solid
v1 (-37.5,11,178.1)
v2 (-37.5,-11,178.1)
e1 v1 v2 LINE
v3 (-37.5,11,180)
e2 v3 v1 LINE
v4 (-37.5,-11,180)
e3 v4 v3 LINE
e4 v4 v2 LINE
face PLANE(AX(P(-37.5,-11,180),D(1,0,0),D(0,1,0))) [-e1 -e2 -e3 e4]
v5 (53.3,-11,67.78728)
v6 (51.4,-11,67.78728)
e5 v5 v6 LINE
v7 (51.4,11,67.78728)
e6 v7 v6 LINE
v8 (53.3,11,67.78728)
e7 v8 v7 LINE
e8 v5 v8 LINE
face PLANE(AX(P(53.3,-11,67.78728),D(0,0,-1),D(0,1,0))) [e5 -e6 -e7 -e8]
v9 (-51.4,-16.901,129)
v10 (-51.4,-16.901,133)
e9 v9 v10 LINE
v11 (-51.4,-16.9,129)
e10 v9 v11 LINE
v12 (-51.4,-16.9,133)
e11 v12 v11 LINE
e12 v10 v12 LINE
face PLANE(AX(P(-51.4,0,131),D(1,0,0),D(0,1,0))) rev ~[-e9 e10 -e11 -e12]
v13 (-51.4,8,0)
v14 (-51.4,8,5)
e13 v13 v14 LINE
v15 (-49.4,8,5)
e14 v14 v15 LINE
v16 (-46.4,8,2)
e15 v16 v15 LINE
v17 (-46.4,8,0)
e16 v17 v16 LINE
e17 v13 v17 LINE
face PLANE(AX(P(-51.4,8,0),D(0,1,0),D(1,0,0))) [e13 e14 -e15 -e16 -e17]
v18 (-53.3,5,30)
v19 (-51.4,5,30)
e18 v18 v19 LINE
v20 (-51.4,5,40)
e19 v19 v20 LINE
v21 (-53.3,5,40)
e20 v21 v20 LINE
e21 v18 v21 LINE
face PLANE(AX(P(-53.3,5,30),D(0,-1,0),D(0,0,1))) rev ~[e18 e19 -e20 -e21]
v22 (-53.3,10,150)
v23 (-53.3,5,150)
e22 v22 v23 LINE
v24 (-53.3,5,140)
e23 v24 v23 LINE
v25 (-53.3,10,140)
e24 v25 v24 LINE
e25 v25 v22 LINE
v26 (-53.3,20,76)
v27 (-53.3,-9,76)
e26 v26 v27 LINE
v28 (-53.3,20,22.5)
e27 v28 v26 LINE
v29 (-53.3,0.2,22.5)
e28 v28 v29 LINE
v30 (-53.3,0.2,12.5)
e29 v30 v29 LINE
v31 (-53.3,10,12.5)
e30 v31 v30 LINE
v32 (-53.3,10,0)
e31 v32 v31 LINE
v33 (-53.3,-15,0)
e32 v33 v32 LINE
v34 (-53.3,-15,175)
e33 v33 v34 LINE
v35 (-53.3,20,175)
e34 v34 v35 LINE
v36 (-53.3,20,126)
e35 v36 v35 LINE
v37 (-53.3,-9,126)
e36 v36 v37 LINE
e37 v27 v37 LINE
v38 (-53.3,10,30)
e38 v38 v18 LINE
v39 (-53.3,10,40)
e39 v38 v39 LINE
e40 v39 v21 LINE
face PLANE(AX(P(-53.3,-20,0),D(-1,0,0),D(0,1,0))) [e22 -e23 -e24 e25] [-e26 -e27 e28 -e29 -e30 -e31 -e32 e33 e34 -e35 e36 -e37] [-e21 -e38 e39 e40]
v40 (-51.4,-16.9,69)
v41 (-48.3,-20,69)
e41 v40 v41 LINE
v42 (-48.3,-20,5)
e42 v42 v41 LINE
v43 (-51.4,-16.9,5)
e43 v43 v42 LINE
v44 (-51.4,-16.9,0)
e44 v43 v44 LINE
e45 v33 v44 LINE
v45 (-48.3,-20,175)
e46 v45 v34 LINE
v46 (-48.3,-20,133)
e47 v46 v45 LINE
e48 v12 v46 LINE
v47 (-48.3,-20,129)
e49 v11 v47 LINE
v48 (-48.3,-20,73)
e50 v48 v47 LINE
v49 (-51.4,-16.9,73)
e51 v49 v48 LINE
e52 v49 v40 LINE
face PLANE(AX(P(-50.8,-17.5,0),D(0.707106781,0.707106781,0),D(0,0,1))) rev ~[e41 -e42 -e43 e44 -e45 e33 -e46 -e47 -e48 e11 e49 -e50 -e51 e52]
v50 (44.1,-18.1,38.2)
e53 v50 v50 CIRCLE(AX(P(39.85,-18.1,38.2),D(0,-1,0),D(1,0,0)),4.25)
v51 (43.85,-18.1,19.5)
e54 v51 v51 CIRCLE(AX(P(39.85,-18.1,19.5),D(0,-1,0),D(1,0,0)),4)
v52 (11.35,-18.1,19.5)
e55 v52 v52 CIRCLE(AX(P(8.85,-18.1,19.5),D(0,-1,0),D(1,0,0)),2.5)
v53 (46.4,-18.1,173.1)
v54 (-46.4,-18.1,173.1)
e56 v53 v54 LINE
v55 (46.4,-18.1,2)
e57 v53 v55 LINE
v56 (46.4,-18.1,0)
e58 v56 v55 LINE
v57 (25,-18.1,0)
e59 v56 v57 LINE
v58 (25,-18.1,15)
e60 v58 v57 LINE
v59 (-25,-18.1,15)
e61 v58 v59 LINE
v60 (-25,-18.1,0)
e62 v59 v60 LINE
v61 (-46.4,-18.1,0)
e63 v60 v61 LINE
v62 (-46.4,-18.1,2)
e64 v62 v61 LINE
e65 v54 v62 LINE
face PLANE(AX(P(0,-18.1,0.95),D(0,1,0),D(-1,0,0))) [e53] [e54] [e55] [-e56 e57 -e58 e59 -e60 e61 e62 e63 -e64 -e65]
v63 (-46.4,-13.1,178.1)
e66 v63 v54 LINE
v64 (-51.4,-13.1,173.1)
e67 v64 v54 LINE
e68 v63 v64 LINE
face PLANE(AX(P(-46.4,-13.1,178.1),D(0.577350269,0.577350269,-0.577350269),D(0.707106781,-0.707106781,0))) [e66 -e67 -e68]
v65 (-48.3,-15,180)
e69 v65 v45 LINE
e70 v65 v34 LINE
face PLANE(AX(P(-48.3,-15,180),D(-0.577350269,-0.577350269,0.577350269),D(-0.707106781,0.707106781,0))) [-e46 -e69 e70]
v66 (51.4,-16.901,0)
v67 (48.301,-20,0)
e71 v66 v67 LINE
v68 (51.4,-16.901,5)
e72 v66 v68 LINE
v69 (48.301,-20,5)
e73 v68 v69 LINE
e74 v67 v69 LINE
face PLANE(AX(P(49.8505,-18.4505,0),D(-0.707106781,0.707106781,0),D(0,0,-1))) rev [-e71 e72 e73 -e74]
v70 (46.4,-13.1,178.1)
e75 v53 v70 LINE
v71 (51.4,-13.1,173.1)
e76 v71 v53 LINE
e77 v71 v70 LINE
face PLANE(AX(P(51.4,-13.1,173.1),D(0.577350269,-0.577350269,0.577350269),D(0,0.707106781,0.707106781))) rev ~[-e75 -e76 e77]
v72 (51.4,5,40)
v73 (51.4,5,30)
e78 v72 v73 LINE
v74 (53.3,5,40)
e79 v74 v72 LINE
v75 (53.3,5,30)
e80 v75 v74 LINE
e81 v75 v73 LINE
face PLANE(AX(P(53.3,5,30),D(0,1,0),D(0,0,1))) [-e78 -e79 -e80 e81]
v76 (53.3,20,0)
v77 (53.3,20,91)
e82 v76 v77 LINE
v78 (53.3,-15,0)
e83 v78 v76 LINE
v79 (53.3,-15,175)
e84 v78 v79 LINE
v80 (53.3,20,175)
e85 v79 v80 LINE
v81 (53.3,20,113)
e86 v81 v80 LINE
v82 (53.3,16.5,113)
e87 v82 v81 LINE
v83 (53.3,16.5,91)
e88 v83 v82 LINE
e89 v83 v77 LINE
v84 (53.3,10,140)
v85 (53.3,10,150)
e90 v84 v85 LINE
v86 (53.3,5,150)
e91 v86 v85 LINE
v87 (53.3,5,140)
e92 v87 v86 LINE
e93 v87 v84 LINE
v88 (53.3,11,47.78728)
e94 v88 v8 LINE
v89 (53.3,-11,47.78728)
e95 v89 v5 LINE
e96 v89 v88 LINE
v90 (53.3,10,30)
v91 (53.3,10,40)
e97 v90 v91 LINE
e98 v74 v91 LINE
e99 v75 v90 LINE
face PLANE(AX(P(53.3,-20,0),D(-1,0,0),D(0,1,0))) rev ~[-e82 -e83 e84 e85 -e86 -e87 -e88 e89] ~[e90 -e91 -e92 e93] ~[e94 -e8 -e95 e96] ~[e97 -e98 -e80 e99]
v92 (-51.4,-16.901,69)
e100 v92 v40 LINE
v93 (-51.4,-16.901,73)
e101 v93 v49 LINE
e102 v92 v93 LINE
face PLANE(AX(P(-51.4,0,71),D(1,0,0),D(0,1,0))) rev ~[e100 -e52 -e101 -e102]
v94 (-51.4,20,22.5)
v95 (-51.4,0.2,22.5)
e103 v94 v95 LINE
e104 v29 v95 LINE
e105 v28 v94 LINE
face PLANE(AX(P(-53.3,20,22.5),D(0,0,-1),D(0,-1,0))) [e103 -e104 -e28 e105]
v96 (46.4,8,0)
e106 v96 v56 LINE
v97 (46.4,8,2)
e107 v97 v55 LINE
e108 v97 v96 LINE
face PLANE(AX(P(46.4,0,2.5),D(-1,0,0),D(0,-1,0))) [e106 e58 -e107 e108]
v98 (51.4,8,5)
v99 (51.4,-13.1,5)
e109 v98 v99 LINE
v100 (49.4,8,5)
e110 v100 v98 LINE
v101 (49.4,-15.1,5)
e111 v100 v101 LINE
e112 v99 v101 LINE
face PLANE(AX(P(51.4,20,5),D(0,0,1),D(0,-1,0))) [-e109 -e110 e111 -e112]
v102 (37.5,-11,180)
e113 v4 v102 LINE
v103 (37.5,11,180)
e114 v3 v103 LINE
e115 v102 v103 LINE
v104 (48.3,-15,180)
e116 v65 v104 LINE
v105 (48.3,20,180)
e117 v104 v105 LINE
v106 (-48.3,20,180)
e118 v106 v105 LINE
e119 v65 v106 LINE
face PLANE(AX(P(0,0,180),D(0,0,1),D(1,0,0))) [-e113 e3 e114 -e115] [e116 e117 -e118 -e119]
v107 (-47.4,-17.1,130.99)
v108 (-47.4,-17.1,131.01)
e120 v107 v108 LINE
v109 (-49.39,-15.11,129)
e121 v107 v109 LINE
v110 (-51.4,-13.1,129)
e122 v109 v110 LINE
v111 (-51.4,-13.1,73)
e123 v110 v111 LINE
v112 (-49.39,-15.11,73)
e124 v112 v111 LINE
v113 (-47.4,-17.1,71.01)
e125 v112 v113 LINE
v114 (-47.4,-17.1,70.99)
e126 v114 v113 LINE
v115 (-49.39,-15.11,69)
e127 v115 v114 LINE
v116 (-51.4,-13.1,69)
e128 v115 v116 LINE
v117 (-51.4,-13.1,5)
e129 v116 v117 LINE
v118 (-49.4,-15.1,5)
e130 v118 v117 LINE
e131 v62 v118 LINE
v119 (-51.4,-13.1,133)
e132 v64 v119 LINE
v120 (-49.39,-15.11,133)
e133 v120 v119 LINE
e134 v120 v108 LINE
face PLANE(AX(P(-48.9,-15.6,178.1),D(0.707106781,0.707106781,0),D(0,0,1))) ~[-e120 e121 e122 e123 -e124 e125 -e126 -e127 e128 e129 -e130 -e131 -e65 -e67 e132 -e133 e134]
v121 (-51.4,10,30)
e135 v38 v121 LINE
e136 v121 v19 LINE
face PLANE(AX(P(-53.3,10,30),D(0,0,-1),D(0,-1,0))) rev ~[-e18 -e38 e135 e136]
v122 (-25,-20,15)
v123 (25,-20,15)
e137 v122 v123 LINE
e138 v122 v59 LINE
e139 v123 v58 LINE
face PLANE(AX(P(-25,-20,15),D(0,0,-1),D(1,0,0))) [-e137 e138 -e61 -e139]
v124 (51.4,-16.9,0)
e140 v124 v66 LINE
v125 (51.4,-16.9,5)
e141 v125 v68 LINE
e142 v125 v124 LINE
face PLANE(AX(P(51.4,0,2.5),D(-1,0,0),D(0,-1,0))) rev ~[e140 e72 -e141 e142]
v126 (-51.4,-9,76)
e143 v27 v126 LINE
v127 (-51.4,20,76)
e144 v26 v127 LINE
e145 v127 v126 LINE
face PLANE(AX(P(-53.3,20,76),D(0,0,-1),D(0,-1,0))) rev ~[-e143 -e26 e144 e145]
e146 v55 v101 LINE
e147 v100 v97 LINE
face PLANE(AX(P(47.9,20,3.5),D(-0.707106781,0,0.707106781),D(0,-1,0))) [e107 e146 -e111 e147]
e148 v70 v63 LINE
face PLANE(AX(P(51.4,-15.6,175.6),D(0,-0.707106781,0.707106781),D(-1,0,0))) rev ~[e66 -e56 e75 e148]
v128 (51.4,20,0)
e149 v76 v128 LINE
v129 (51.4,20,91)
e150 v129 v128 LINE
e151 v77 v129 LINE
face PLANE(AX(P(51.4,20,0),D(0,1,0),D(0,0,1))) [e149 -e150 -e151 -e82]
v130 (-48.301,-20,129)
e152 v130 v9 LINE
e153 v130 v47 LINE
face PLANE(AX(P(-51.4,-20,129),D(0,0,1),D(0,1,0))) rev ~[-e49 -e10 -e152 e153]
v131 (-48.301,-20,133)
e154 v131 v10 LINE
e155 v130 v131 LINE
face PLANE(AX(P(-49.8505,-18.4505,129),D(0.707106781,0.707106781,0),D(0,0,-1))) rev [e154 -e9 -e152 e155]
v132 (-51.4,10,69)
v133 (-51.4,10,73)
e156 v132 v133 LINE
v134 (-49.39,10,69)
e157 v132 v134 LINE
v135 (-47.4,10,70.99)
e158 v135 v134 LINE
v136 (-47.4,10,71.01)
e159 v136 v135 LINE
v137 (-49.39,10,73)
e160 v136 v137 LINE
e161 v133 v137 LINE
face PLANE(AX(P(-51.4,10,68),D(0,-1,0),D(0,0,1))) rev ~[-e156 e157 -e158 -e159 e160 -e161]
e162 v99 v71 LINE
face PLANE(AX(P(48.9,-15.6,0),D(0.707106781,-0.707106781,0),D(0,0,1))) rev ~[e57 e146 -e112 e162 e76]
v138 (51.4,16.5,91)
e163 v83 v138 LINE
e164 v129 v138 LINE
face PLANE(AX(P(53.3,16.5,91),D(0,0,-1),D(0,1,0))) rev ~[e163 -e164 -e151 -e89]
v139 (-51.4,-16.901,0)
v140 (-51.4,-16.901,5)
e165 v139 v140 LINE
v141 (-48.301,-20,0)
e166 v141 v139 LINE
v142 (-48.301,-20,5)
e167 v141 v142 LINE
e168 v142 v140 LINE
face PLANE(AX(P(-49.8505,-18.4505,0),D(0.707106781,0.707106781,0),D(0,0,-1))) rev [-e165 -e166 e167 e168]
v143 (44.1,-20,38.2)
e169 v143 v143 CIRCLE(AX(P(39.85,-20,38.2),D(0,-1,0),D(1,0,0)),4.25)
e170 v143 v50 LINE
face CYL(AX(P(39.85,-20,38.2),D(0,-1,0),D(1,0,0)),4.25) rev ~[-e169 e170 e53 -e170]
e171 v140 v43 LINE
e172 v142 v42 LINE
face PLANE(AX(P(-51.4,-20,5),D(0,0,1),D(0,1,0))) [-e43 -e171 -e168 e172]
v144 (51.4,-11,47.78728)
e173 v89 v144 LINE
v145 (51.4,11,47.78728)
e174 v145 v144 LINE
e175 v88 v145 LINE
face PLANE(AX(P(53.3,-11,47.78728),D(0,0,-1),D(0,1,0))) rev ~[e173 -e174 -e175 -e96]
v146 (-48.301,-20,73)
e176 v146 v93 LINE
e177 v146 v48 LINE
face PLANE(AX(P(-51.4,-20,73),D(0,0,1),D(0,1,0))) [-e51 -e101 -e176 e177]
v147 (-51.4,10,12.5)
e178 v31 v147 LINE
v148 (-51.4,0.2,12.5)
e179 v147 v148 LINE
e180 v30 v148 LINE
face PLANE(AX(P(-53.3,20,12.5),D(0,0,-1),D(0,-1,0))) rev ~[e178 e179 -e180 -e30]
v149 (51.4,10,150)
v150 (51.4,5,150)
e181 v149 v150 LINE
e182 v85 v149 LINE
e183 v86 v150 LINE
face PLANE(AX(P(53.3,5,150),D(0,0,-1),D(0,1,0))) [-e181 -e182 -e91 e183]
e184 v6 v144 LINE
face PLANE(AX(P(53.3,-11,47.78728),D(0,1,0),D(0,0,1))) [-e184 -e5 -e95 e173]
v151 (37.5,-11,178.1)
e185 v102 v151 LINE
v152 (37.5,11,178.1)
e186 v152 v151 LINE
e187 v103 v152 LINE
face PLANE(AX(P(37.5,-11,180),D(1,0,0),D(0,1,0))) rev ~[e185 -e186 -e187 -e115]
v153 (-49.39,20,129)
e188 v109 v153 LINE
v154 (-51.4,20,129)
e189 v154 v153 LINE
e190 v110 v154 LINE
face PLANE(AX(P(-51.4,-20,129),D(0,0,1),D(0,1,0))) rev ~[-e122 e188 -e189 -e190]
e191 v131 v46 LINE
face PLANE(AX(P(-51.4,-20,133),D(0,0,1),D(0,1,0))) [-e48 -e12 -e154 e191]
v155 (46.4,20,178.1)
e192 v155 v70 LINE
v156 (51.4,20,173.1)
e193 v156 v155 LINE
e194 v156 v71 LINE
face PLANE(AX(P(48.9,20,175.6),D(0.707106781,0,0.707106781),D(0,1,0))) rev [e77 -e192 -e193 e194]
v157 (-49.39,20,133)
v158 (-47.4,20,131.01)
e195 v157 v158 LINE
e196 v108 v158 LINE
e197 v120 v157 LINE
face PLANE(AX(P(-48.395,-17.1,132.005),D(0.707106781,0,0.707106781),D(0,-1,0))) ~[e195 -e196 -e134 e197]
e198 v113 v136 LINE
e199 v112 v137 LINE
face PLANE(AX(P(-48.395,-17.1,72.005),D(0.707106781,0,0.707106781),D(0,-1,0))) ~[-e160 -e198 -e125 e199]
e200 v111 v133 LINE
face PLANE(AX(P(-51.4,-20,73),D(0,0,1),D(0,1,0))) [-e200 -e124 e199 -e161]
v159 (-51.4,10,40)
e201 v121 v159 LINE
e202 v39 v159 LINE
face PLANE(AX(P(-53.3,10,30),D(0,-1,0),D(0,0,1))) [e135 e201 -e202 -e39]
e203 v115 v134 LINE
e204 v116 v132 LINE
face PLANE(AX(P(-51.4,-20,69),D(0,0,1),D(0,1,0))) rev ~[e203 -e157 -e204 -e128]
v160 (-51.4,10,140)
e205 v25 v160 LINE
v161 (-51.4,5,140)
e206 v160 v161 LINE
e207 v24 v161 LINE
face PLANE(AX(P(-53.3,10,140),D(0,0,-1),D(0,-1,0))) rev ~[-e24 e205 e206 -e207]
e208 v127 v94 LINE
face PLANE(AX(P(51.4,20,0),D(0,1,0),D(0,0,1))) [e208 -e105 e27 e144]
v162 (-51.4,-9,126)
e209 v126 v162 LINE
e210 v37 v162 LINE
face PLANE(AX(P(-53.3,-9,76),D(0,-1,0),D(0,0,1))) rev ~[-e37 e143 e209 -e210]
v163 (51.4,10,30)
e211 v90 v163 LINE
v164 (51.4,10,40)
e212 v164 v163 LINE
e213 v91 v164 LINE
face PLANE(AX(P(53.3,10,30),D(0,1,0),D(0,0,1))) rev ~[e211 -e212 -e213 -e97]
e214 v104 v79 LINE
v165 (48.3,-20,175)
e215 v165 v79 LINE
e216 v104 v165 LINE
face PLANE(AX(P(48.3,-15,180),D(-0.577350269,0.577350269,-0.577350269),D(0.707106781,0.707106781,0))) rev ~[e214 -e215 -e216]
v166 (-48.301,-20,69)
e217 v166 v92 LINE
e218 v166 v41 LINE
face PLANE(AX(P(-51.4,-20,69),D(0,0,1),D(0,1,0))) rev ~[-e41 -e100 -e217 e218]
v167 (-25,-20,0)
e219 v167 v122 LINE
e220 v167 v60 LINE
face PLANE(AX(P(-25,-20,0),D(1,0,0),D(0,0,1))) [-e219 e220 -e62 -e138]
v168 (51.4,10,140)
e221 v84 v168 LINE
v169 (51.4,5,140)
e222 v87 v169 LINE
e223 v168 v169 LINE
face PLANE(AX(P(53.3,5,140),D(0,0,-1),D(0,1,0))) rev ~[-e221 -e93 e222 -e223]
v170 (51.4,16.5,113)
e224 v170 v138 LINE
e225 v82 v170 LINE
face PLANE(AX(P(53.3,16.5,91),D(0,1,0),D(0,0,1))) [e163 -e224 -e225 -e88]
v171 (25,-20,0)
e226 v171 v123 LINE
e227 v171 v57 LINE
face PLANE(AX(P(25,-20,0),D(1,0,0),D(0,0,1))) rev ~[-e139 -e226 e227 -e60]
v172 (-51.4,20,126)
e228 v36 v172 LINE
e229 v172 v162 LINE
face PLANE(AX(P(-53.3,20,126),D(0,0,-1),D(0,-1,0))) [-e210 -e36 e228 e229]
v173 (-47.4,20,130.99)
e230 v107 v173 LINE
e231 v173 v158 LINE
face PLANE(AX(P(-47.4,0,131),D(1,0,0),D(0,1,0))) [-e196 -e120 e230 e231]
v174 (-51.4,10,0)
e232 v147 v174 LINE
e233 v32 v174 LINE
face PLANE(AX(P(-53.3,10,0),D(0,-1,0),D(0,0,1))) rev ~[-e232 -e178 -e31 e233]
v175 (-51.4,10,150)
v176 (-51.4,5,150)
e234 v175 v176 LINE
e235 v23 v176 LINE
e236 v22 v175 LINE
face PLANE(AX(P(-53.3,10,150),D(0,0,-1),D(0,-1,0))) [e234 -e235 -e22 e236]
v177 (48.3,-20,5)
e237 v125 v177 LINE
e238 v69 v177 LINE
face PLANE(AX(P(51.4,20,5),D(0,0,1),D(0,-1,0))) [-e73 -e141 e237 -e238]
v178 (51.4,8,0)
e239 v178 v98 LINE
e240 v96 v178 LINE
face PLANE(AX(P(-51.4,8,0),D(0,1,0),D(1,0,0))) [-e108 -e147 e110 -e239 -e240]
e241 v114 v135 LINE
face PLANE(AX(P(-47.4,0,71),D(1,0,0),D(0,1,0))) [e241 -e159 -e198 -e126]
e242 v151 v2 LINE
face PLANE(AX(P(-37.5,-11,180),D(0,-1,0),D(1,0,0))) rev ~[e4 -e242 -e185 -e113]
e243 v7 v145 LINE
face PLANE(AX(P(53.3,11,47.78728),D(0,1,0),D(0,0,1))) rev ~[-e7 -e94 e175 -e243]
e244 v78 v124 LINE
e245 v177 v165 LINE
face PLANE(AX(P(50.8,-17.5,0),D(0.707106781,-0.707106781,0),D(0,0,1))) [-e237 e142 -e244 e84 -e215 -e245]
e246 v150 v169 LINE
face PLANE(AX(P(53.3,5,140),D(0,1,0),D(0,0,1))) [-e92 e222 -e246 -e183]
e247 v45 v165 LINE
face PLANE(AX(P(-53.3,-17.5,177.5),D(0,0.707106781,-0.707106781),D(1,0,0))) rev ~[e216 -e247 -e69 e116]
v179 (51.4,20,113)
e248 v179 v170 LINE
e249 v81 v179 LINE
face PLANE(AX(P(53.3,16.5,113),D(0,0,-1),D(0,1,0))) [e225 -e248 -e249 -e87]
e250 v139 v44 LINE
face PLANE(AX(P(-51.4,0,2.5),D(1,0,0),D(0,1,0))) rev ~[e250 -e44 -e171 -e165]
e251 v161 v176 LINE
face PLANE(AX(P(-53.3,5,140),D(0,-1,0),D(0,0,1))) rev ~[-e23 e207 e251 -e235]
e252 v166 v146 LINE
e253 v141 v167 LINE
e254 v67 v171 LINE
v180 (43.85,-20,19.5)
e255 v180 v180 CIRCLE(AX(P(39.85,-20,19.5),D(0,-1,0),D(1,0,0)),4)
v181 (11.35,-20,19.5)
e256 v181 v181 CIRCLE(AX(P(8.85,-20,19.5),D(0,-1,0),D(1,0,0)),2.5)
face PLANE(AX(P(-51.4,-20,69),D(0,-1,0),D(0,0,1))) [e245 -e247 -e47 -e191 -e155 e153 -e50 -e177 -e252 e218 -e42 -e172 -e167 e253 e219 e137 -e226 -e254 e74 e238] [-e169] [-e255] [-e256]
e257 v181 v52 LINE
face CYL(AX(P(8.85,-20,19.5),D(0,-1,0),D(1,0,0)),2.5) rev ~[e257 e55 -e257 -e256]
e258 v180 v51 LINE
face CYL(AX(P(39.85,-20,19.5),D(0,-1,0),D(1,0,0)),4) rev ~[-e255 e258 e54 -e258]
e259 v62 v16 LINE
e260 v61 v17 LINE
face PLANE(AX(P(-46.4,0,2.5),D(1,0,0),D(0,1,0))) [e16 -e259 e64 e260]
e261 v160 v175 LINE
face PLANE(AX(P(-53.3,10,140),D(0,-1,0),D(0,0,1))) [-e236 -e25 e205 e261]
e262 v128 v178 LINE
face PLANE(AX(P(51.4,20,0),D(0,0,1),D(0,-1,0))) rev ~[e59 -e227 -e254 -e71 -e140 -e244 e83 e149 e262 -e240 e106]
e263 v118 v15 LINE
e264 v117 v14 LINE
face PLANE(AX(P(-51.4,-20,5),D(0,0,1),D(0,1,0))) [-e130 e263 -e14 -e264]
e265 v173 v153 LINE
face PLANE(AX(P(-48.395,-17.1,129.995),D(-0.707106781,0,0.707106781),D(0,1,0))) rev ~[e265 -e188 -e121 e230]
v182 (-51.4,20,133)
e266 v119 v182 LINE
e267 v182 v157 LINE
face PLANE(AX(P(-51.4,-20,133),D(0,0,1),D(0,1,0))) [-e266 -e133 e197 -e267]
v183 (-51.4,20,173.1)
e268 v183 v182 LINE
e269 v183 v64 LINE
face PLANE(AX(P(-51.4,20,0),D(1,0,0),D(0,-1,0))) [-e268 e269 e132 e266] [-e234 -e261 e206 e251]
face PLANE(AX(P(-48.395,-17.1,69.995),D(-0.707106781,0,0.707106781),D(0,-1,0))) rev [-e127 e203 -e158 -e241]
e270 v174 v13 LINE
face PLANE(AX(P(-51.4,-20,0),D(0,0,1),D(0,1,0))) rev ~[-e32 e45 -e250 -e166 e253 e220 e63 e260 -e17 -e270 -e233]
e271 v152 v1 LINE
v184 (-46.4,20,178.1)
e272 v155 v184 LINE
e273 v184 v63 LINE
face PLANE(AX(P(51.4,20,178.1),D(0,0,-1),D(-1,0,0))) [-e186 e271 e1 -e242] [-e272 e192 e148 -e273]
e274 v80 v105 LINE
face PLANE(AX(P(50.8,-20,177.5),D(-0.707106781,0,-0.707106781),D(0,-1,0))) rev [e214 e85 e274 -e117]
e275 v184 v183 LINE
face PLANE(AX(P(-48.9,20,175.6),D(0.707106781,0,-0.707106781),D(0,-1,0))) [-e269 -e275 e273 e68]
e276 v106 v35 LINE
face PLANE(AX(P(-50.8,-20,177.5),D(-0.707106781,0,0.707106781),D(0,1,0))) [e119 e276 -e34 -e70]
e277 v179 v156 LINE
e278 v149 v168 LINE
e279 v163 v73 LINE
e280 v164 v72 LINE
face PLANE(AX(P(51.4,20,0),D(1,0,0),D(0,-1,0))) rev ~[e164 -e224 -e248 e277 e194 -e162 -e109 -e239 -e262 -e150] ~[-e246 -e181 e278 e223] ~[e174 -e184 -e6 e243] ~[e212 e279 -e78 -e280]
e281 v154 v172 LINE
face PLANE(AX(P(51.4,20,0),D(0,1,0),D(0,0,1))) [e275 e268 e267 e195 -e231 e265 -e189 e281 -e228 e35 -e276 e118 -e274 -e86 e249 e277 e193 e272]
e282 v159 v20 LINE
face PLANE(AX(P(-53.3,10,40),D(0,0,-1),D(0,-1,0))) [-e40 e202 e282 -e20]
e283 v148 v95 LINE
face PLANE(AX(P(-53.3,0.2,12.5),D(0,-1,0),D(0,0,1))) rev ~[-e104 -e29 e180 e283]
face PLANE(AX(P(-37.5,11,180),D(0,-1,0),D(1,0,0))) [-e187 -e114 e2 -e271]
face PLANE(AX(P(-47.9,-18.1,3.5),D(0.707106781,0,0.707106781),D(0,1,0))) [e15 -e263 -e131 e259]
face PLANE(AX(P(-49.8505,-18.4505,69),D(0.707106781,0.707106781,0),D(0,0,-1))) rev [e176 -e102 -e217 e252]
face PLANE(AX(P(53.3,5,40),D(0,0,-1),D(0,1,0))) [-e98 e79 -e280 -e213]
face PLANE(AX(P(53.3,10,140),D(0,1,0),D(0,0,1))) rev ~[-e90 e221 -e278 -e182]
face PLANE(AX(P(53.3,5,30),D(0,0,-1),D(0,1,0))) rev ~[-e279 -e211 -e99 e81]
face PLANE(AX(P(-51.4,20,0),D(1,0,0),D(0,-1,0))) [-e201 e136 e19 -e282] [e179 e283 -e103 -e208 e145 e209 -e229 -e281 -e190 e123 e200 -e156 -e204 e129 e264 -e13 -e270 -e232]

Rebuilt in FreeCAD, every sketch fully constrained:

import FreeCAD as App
import Part
import Sketcher

V = App.Vector


def edges_at(feature, points):
    """Names of the edges that pass closest to the given points."""
    edges = feature.Shape.Edges
    near = lambda p: min(range(len(edges)), key=lambda i: edges[i].distToShape(Part.Vertex(*p))[0])
    return sorted({f"Edge{near(p) + 1}" for p in points})


def add_polygon(sketch, points):
    """Adds a closed chain of lines whose ends are joined by coincident constraints."""
    first, n = sketch.GeometryCount, len(points)
    for a, b in zip(points, points[1:] + points[:1]):
        sketch.addGeometry(Part.LineSegment(App.Vector(*a, 0), App.Vector(*b, 0)), False)
    for i in range(n):
        sketch.addConstraint(Sketcher.Constraint("Coincident", first + i, 2, first + (i + 1) % n, 1))

doc = App.newDocument("Part")
body = doc.addObject("PartDesign::Body", "Body")

# Sketch on XY plane
sketch1 = doc.addObject("Sketcher::SketchObject", "Sketch")
body.addObject(sketch1)
sketch1.AttachmentSupport = (doc.XY_Plane, [""])
sketch1.MapMode = "FlatFace"
add_polygon(sketch1, [(-53, 20), (-53, -20), (53, -20), (53, 20)])  # lines 0-3
sketch1.addConstraint([
    Sketcher.Constraint("Vertical", 0),
    Sketcher.Constraint("Horizontal", 1),
    Sketcher.Constraint("Vertical", 2),
    Sketcher.Constraint("Horizontal", 3),
    Sketcher.Constraint("Symmetric", 0, 2, 2, 2, -1, 1),
    Sketcher.Constraint("DistanceY", 0, 2, 0, 1, 40.0),
    Sketcher.Constraint("DistanceX", 1, 1, 1, 2, 106.6),
])
pad1 = doc.addObject("PartDesign::Pad", "Pad")
body.addObject(pad1)
pad1.Profile = sketch1
pad1.Length = 180

# Sketch on XZ plane
sketch2 = doc.addObject("Sketcher::SketchObject", "Sketch001")
body.addObject(sketch2)
sketch2.AttachmentSupport = (doc.XZ_Plane, [""])
sketch2.MapMode = "FlatFace"
sketch2.AttachmentOffset = App.Placement(V(0, 0, -20), App.Rotation())
add_polygon(sketch2, [(51, 178), (51, 2), (-51, 2), (-51, 178)])  # lines 0-3
sketch2.addConstraint([
    Sketcher.Constraint("Vertical", 0),
    Sketcher.Constraint("Horizontal", 1),
    Sketcher.Constraint("Vertical", 2),
    Sketcher.Constraint("Horizontal", 3),
    Sketcher.Constraint("DistanceX", 1, 2, 1, 1, 102.8),
    Sketcher.Constraint("DistanceY", 0, 2, 0, 1, 176.2),
    Sketcher.Constraint("DistanceX", -1, 1, 0, 2, 51.4),
    Sketcher.Constraint("DistanceY", -1, 1, 0, 2, 1.9),
])
pocket1 = doc.addObject("PartDesign::Pocket", "Pocket")
body.addObject(pocket1)
pocket1.Profile = sketch2
pocket1.Length = 38.1
pocket1.Reversed = True

# Sketch on XZ plane
sketch3 = doc.addObject("Sketcher::SketchObject", "Sketch002")
body.addObject(sketch3)
sketch3.AttachmentSupport = (doc.XZ_Plane, [""])
sketch3.MapMode = "FlatFace"
sketch3.AttachmentOffset = App.Placement(V(0, 0, -20), App.Rotation())
add_polygon(sketch3, [(51.4, 1.9), (51.4, 0), (-51.4, 0), (-51.4, 1.9)])  # lines 0-3
sketch3.addConstraint([
    Sketcher.Constraint("Vertical", 0),
    Sketcher.Constraint("Horizontal", 1),
    Sketcher.Constraint("Vertical", 2),
    Sketcher.Constraint("Horizontal", 3),
    Sketcher.Constraint("Symmetric", 0, 2, 1, 2, -1, 1),
    Sketcher.Constraint("DistanceX", 1, 2, 1, 1, 102.8),
    Sketcher.Constraint("DistanceY", 0, 2, 0, 1, 1.9),
])
pocket2 = doc.addObject("PartDesign::Pocket", "Pocket001")
body.addObject(pocket2)
pocket2.Profile = sketch3
pocket2.Length = 38.1
pocket2.Reversed = True

# Sketch on XZ plane
sketch4 = doc.addObject("Sketcher::SketchObject", "Sketch003")
body.addObject(sketch4)
sketch4.AttachmentSupport = (doc.XZ_Plane, [""])
sketch4.MapMode = "FlatFace"
sketch4.AttachmentOffset = App.Placement(V(0, 0, 20), App.Rotation())
add_polygon(sketch4, [(-25, 15), (-25, 0), (25, 0), (25, 15)])  # lines 0-3
sketch4.addConstraint([
    Sketcher.Constraint("Vertical", 0),
    Sketcher.Constraint("Horizontal", 1),
    Sketcher.Constraint("Vertical", 2),
    Sketcher.Constraint("Horizontal", 3),
    Sketcher.Constraint("Symmetric", 0, 2, 1, 2, -1, 1),
    Sketcher.Constraint("DistanceX", 1, 1, 1, 2, 50.0),
    Sketcher.Constraint("DistanceY", 0, 2, 0, 1, 15.0),
])
pocket3 = doc.addObject("PartDesign::Pocket", "Pocket002")
body.addObject(pocket3)
pocket3.Profile = sketch4
pocket3.Length = 5

# Sketch on YZ plane
sketch5 = doc.addObject("Sketcher::SketchObject", "Sketch004")
body.addObject(sketch5)
sketch5.AttachmentSupport = (doc.YZ_Plane, [""])
sketch5.MapMode = "FlatFace"
sketch5.AttachmentOffset = App.Placement(V(0, 0, 53.3), App.Rotation())
add_polygon(sketch5, [(-11, 68), (-11, 48), (11, 48), (11, 68)])  # lines 0-3
sketch5.addConstraint([
    Sketcher.Constraint("Vertical", 0),
    Sketcher.Constraint("Horizontal", 1),
    Sketcher.Constraint("Vertical", 2),
    Sketcher.Constraint("Horizontal", 3),
    Sketcher.Constraint("DistanceX", 1, 1, 1, 2, 22.0),
    Sketcher.Constraint("DistanceY", 0, 2, 0, 1, 20.0),
    Sketcher.Constraint("DistanceX", 0, 2, -1, 1, 11.0),
    Sketcher.Constraint("DistanceY", -1, 1, 0, 2, 47.78728),
])
pocket4 = doc.addObject("PartDesign::Pocket", "Pocket003")
body.addObject(pocket4)
pocket4.Profile = sketch5
pocket4.Length = 5

# Sketch on XY plane
sketch6 = doc.addObject("Sketcher::SketchObject", "Sketch005")
body.addObject(sketch6)
sketch6.AttachmentSupport = (doc.XY_Plane, [""])
sketch6.MapMode = "FlatFace"
sketch6.AttachmentOffset = App.Placement(V(0, 0, 180), App.Rotation())
add_polygon(sketch6, [(-38, 11), (-38, -11), (38, -11), (38, 11)])  # lines 0-3
sketch6.addConstraint([
    Sketcher.Constraint("Vertical", 0),
    Sketcher.Constraint("Horizontal", 1),
    Sketcher.Constraint("Vertical", 2),
    Sketcher.Constraint("Horizontal", 3),
    Sketcher.Constraint("Symmetric", 0, 2, 2, 2, -1, 1),
    Sketcher.Constraint("DistanceX", 1, 1, 1, 2, 75.0),
    Sketcher.Constraint("DistanceY", 0, 2, 0, 1, 22.0),
])
pocket5 = doc.addObject("PartDesign::Pocket", "Pocket004")
body.addObject(pocket5)
pocket5.Profile = sketch6
pocket5.Length = 5

# Sketch on XZ plane
sketch7 = doc.addObject("Sketcher::SketchObject", "Sketch006")
body.addObject(sketch7)
sketch7.AttachmentSupport = (doc.XZ_Plane, [""])
sketch7.MapMode = "FlatFace"
sketch7.AttachmentOffset = App.Placement(V(0, 0, 20), App.Rotation())
sketch7.addGeometry([
    Part.Circle(V(39.9, 19.5, 0), V(0, 0, 1), 4),
    Part.Circle(V(39.9, 38.2, 0), V(0, 0, 1), 4.2),
], False)
sketch7.addConstraint([
    Sketcher.Constraint("Vertical", 0, 3, 1, 3),
    Sketcher.Constraint("Diameter", 0, 8.0),
    Sketcher.Constraint("Diameter", 1, 8.5),
    Sketcher.Constraint("DistanceY", -1, 1, 0, 3, 19.5),
    Sketcher.Constraint("DistanceY", -1, 1, 1, 3, 38.2),
    Sketcher.Constraint("DistanceX", -1, 1, 0, 3, 39.85),
])
pocket6 = doc.addObject("PartDesign::Pocket", "Pocket005")
body.addObject(pocket6)
pocket6.Profile = sketch7
pocket6.Length = 5
doc.recompute()

chamfer = doc.addObject("PartDesign::Chamfer", "Chamfer")
body.addObject(chamfer)
chamfer.Base = (pocket6, edges_at(pocket6, [
    (-51.4, -18.1, 89.05),
    (-51.4, 0.95, 178.1),
    (0, -18.1, 178.1),
    (51.4, -18.1, 89.05),
    (51.4, 0.95, 178.1),
]))
chamfer.Size = 5
doc.recompute()

chamfer2 = doc.addObject("PartDesign::Chamfer", "Chamfer001")
body.addObject(chamfer2)
chamfer2.Base = (chamfer, edges_at(chamfer, [
    (53.3, -20, 90),
    (-53.3, -20, 90),
    (0, -20, 180),
    (53.3, 0, 180),
    (-53.3, 0, 180),
]))
chamfer2.Size = 5

# Sketch on YZ plane
sketch8 = doc.addObject("Sketcher::SketchObject", "Sketch007")
body.addObject(sketch8)
sketch8.AttachmentSupport = (doc.YZ_Plane, [""])
sketch8.MapMode = "FlatFace"
sketch8.AttachmentOffset = App.Placement(V(0, 0, 53.3), App.Rotation())
add_polygon(sketch8, [(5, 150), (5, 140), (10, 140), (10, 150)])  # lines 0-3
add_polygon(sketch8, [(5, 40), (5, 30), (10, 30), (10, 40)])  # lines 4-7
sketch8.addConstraint([
    Sketcher.Constraint("Vertical", 0),
    Sketcher.Constraint("Horizontal", 1),
    Sketcher.Constraint("Vertical", 2),
    Sketcher.Constraint("Horizontal", 3),
    Sketcher.Constraint("Vertical", 4),
    Sketcher.Constraint("Horizontal", 5),
    Sketcher.Constraint("Vertical", 6),
    Sketcher.Constraint("Horizontal", 7),
    Sketcher.Constraint("Vertical", 3, 2, 4, 2),
    Sketcher.Constraint("Vertical", 2, 2, 5, 2),
    Sketcher.Constraint("Equal", 2, 4),
    Sketcher.Constraint("DistanceX", 1, 1, 1, 2, 5.0),
    Sketcher.Constraint("DistanceY", 0, 2, 0, 1, 10.0),
    Sketcher.Constraint("DistanceX", -1, 1, 0, 2, 5.0),
    Sketcher.Constraint("DistanceY", -1, 1, 0, 2, 140.0),
    Sketcher.Constraint("DistanceY", -1, 1, 4, 2, 30.0),
])
pocket7 = doc.addObject("PartDesign::Pocket", "Pocket006")
body.addObject(pocket7)
pocket7.Profile = sketch8
pocket7.Length = 5

# Sketch on YZ plane
sketch9 = doc.addObject("Sketcher::SketchObject", "Sketch008")
body.addObject(sketch9)
sketch9.AttachmentSupport = (doc.YZ_Plane, [""])
sketch9.MapMode = "FlatFace"
sketch9.AttachmentOffset = App.Placement(V(0, 0, -53.3), App.Rotation())
add_polygon(sketch9, [(10, 150), (10, 140), (5, 140), (5, 150)])  # lines 0-3
add_polygon(sketch9, [(10, 40), (10, 30), (5, 30), (5, 40)])  # lines 4-7
sketch9.addConstraint([
    Sketcher.Constraint("Vertical", 0),
    Sketcher.Constraint("Horizontal", 1),
    Sketcher.Constraint("Vertical", 2),
    Sketcher.Constraint("Horizontal", 3),
    Sketcher.Constraint("Vertical", 4),
    Sketcher.Constraint("Horizontal", 5),
    Sketcher.Constraint("Vertical", 6),
    Sketcher.Constraint("Horizontal", 7),
    Sketcher.Constraint("Vertical", 3, 2, 4, 2),
    Sketcher.Constraint("Vertical", 2, 2, 5, 2),
    Sketcher.Constraint("Equal", 2, 4),
    Sketcher.Constraint("DistanceX", 1, 2, 1, 1, 5.0),
    Sketcher.Constraint("DistanceY", 0, 2, 0, 1, 10.0),
    Sketcher.Constraint("DistanceX", -1, 1, 0, 2, 10.0),
    Sketcher.Constraint("DistanceY", -1, 1, 0, 2, 140.0),
    Sketcher.Constraint("DistanceY", -1, 1, 4, 2, 30.0),
])
pocket8 = doc.addObject("PartDesign::Pocket", "Pocket007")
body.addObject(pocket8)
pocket8.Profile = sketch9
pocket8.Length = 5
pocket8.Reversed = True

# Sketch on YZ plane
sketch10 = doc.addObject("Sketcher::SketchObject", "Sketch009")
body.addObject(sketch10)
sketch10.AttachmentSupport = (doc.YZ_Plane, [""])
sketch10.MapMode = "FlatFace"
sketch10.AttachmentOffset = App.Placement(V(0, 0, -53.3), App.Rotation())
add_polygon(sketch10, [(20, 22), (20, 12), (0, 12), (0, 22)])  # lines 0-3
sketch10.addConstraint([
    Sketcher.Constraint("Vertical", 0),
    Sketcher.Constraint("Horizontal", 1),
    Sketcher.Constraint("Vertical", 2),
    Sketcher.Constraint("Horizontal", 3),
    Sketcher.Constraint("DistanceY", 0, 2, 0, 1, 10.0),
    Sketcher.Constraint("DistanceX", 1, 2, 1, 1, 19.8),
    Sketcher.Constraint("DistanceX", -1, 1, 0, 2, 20.0),
    Sketcher.Constraint("DistanceY", -1, 1, 0, 2, 12.5),
])
pocket9 = doc.addObject("PartDesign::Pocket", "Pocket008")
body.addObject(pocket9)
pocket9.Profile = sketch10
pocket9.Length = 5
pocket9.Reversed = True

# Sketch on YZ plane
sketch11 = doc.addObject("Sketcher::SketchObject", "Sketch010")
body.addObject(sketch11)
sketch11.AttachmentSupport = (doc.YZ_Plane, [""])
sketch11.MapMode = "FlatFace"
sketch11.AttachmentOffset = App.Placement(V(0, 0, -51.4), App.Rotation())
add_polygon(sketch11, [(-20, 5), (-20, 0), (20, 0), (20, 5)])  # lines 0-3
sketch11.addConstraint([
    Sketcher.Constraint("Vertical", 0),
    Sketcher.Constraint("Horizontal", 1),
    Sketcher.Constraint("Vertical", 2),
    Sketcher.Constraint("Horizontal", 3),
    Sketcher.Constraint("Symmetric", 0, 2, 1, 2, -1, 1),
    Sketcher.Constraint("DistanceX", 1, 1, 1, 2, 40.0),
    Sketcher.Constraint("DistanceY", 0, 2, 0, 1, 5.0),
])
pad2 = doc.addObject("PartDesign::Pad", "Pad001")
body.addObject(pad2)
pad2.Profile = sketch11
pad2.Length = 5
doc.recompute()

chamfer3 = doc.addObject("PartDesign::Chamfer", "Chamfer002")
body.addObject(chamfer3)
chamfer3.Base = (pad2, edges_at(pad2, [(-51.4, -20, 2.5)]))
chamfer3.Size = 3.099
doc.recompute()

chamfer4 = doc.addObject("PartDesign::Chamfer", "Chamfer003")
body.addObject(chamfer4)
chamfer4.Base = (chamfer3, edges_at(chamfer3, [(-46.4, 0.95, 5)]))
chamfer4.Size = 3

# Sketch on YZ plane
sketch12 = doc.addObject("Sketcher::SketchObject", "Sketch011")
body.addObject(sketch12)
sketch12.AttachmentSupport = (doc.YZ_Plane, [""])
sketch12.MapMode = "FlatFace"
sketch12.AttachmentOffset = App.Placement(V(0, 0, 51.4), App.Rotation())
add_polygon(sketch12, [(20, 5), (20, 0), (-20, 0), (-20, 5)])  # lines 0-3
sketch12.addConstraint([
    Sketcher.Constraint("Vertical", 0),
    Sketcher.Constraint("Horizontal", 1),
    Sketcher.Constraint("Vertical", 2),
    Sketcher.Constraint("Horizontal", 3),
    Sketcher.Constraint("Symmetric", 0, 2, 1, 2, -1, 1),
    Sketcher.Constraint("DistanceX", 1, 2, 1, 1, 40.0),
    Sketcher.Constraint("DistanceY", 0, 2, 0, 1, 5.0),
])
pad3 = doc.addObject("PartDesign::Pad", "Pad002")
body.addObject(pad3)
pad3.Profile = sketch12
pad3.Length = 5
pad3.Reversed = True
doc.recompute()

chamfer5 = doc.addObject("PartDesign::Chamfer", "Chamfer004")
body.addObject(chamfer5)
chamfer5.Base = (pad3, edges_at(pad3, [(51.4, -20, 2.5)]))
chamfer5.Size = 3.099
doc.recompute()

chamfer6 = doc.addObject("PartDesign::Chamfer", "Chamfer005")
body.addObject(chamfer6)
chamfer6.Base = (chamfer5, edges_at(chamfer5, [(46.4, 0.95, 5)]))
chamfer6.Size = 3

# Sketch on YZ plane
sketch13 = doc.addObject("Sketcher::SketchObject", "Sketch012")
body.addObject(sketch13)
sketch13.AttachmentSupport = (doc.YZ_Plane, [""])
sketch13.MapMode = "FlatFace"
sketch13.AttachmentOffset = App.Placement(V(0, 0, 53.3), App.Rotation())
add_polygon(sketch13, [(16.5, 113), (16.5, 91), (20, 91), (20, 113)])  # lines 0-3
sketch13.addConstraint([
    Sketcher.Constraint("Vertical", 0),
    Sketcher.Constraint("Horizontal", 1),
    Sketcher.Constraint("Vertical", 2),
    Sketcher.Constraint("Horizontal", 3),
    Sketcher.Constraint("DistanceY", 0, 2, 0, 1, 22.0),
    Sketcher.Constraint("DistanceX", 1, 1, 1, 2, 3.5),
    Sketcher.Constraint("DistanceY", -1, 1, 0, 2, 91.0),
    Sketcher.Constraint("DistanceX", -1, 1, 1, 2, 20.0),
])
pocket10 = doc.addObject("PartDesign::Pocket", "Pocket009")
body.addObject(pocket10)
pocket10.Profile = sketch13
pocket10.Length = 5

# Sketch on YZ plane
sketch14 = doc.addObject("Sketcher::SketchObject", "Sketch013")
body.addObject(sketch14)
sketch14.AttachmentSupport = (doc.YZ_Plane, [""])
sketch14.MapMode = "FlatFace"
sketch14.AttachmentOffset = App.Placement(V(0, 0, -53.3), App.Rotation())
add_polygon(sketch14, [(20, 113), (20, 91), (16.5, 91), (16.5, 113)])  # lines 0-3
sketch14.addConstraint([
    Sketcher.Constraint("Vertical", 0),
    Sketcher.Constraint("Horizontal", 1),
    Sketcher.Constraint("Vertical", 2),
    Sketcher.Constraint("Horizontal", 3),
    Sketcher.Constraint("DistanceY", 0, 2, 0, 1, 22.0),
    Sketcher.Constraint("DistanceX", 1, 2, 1, 1, 3.5),
    Sketcher.Constraint("DistanceX", -1, 1, 0, 2, 20.0),
    Sketcher.Constraint("DistanceY", -1, 1, 0, 2, 91.0),
])
pocket11 = doc.addObject("PartDesign::Pocket", "Pocket010")
body.addObject(pocket11)
pocket11.Profile = sketch14
pocket11.Length = 5
pocket11.Reversed = True

# Sketch on YZ plane
sketch15 = doc.addObject("Sketcher::SketchObject", "Sketch014")
body.addObject(sketch15)
sketch15.AttachmentSupport = (doc.YZ_Plane, [""])
sketch15.MapMode = "FlatFace"
sketch15.AttachmentOffset = App.Placement(V(0, 0, -53.3), App.Rotation())
add_polygon(sketch15, [(20, 126), (20, 76), (-9, 76), (-9, 126)])  # lines 0-3
sketch15.addConstraint([
    Sketcher.Constraint("Vertical", 0),
    Sketcher.Constraint("Horizontal", 1),
    Sketcher.Constraint("Vertical", 2),
    Sketcher.Constraint("Horizontal", 3),
    Sketcher.Constraint("DistanceX", 1, 2, 1, 1, 29.0),
    Sketcher.Constraint("DistanceY", 0, 2, 0, 1, 50.0),
    Sketcher.Constraint("DistanceX", -1, 1, 0, 2, 20.0),
    Sketcher.Constraint("DistanceY", -1, 1, 0, 2, 76.0),
])
pocket12 = doc.addObject("PartDesign::Pocket", "Pocket011")
body.addObject(pocket12)
pocket12.Profile = sketch15
pocket12.Length = 5
pocket12.Reversed = True

# Sketch on XY plane
sketch16 = doc.addObject("Sketcher::SketchObject", "Sketch015")
body.addObject(sketch16)
sketch16.AttachmentSupport = (doc.XY_Plane, [""])
sketch16.MapMode = "FlatFace"
add_polygon(sketch16, [(-51, 8), (-51, 20), (51, 20), (51, 8)])  # lines 0-3
sketch16.addConstraint([
    Sketcher.Constraint("Vertical", 0),
    Sketcher.Constraint("Horizontal", 1),
    Sketcher.Constraint("Vertical", 2),
    Sketcher.Constraint("Horizontal", 3),
    Sketcher.Constraint("DistanceY", 0, 1, 0, 2, 12.0),
    Sketcher.Constraint("DistanceX", 1, 1, 1, 2, 102.8),
    Sketcher.Constraint("DistanceY", -1, 1, 0, 2, 20.0),
    Sketcher.Constraint("DistanceX", 0, 2, -1, 1, 51.4),
])
pocket13 = doc.addObject("PartDesign::Pocket", "Pocket012")
body.addObject(pocket13)
pocket13.Profile = sketch16
pocket13.Length = 5
pocket13.Reversed = True

# Sketch on YZ plane
sketch17 = doc.addObject("Sketcher::SketchObject", "Sketch016")
body.addObject(sketch17)
sketch17.AttachmentSupport = (doc.YZ_Plane, [""])
sketch17.MapMode = "FlatFace"
sketch17.AttachmentOffset = App.Placement(V(0, 0, -53.3), App.Rotation())
add_polygon(sketch17, [(20, 12), (20, 0), (10, 0), (10, 12)])  # lines 0-3
sketch17.addConstraint([
    Sketcher.Constraint("Vertical", 0),
    Sketcher.Constraint("Horizontal", 1),
    Sketcher.Constraint("Vertical", 2),
    Sketcher.Constraint("Horizontal", 3),
    Sketcher.Constraint("PointOnObject", 0, 2, -1),
    Sketcher.Constraint("DistanceX", 1, 2, 1, 1, 10.0),
    Sketcher.Constraint("DistanceY", 0, 2, 0, 1, 12.5),
    Sketcher.Constraint("DistanceX", -1, 1, 0, 2, 20.0),
])
pocket14 = doc.addObject("PartDesign::Pocket", "Pocket013")
body.addObject(pocket14)
pocket14.Profile = sketch17
pocket14.Length = 5
pocket14.Reversed = True

# Sketch on YZ plane
sketch18 = doc.addObject("Sketcher::SketchObject", "Sketch017")
body.addObject(sketch18)
sketch18.AttachmentSupport = (doc.YZ_Plane, [""])
sketch18.MapMode = "FlatFace"
sketch18.AttachmentOffset = App.Placement(V(0, 0, -51.4), App.Rotation())
add_polygon(sketch18, [(-20, 73), (-20, 69), (20, 69), (20, 73)])  # lines 0-3
add_polygon(sketch18, [(-20, 133), (-20, 129), (20, 129), (20, 133)])  # lines 4-7
sketch18.addConstraint([
    Sketcher.Constraint("Vertical", 0),
    Sketcher.Constraint("Horizontal", 1),
    Sketcher.Constraint("Vertical", 2),
    Sketcher.Constraint("Horizontal", 3),
    Sketcher.Constraint("Vertical", 4),
    Sketcher.Constraint("Horizontal", 5),
    Sketcher.Constraint("Vertical", 6),
    Sketcher.Constraint("Horizontal", 7),
    Sketcher.Constraint("Vertical", 3, 2, 4, 2),
    Sketcher.Constraint("Vertical", 2, 2, 5, 2),
    Sketcher.Constraint("Equal", 2, 4),
    Sketcher.Constraint("DistanceX", 1, 1, 1, 2, 40.0),
    Sketcher.Constraint("DistanceY", 0, 2, 0, 1, 4.0),
    Sketcher.Constraint("DistanceX", 0, 2, -1, 1, 20.0),
    Sketcher.Constraint("DistanceY", -1, 1, 0, 2, 69.0),
    Sketcher.Constraint("DistanceY", -1, 1, 4, 2, 129.0),
])
pad4 = doc.addObject("PartDesign::Pad", "Pad003")
body.addObject(pad4)
pad4.Profile = sketch18
pad4.Length = 4
doc.recompute()

chamfer7 = doc.addObject("PartDesign::Chamfer", "Chamfer006")
body.addObject(chamfer7)
chamfer7.Base = (pad4, edges_at(pad4, [(-51.4, -20, 131), (-51.4, -20, 71)]))
chamfer7.Size = 3.099
doc.recompute()

chamfer8 = doc.addObject("PartDesign::Chamfer", "Chamfer007")
body.addObject(chamfer8)
chamfer8.Base = (chamfer7, edges_at(chamfer7, [
    (-47.4, 1.45, 129),
    (-47.4, 1.45, 133),
    (-47.4, 1.45, 73),
    (-47.4, 1.45, 69),
]))
chamfer8.Size = 1.99

# Sketch on XZ plane
sketch19 = doc.addObject("Sketcher::SketchObject", "Sketch018")
body.addObject(sketch19)
sketch19.AttachmentSupport = (doc.XZ_Plane, [""])
sketch19.MapMode = "FlatFace"
sketch19.AttachmentOffset = App.Placement(V(0, 0, 20), App.Rotation())
sketch19.addGeometry(Part.Circle(V(8.8, 19.5, 0), V(0, 0, 1), 2.5), False)
sketch19.addConstraint([
    Sketcher.Constraint("Diameter", 0, 5.0),
    Sketcher.Constraint("DistanceY", -1, 1, 0, 3, 19.5),
    Sketcher.Constraint("DistanceX", -1, 1, 0, 3, 8.85),
])
pocket15 = doc.addObject("PartDesign::Pocket", "Pocket014")
body.addObject(pocket15)
pocket15.Profile = sketch19
pocket15.Length = 5

# Sketch on YZ plane
sketch20 = doc.addObject("Sketcher::SketchObject", "Sketch019")
body.addObject(sketch20)
sketch20.AttachmentSupport = (doc.YZ_Plane, [""])
sketch20.MapMode = "FlatFace"
sketch20.AttachmentOffset = App.Placement(V(0, 0, -51.4), App.Rotation())
add_polygon(sketch20, [(10, 76), (10, 68), (20, 68), (20, 76)])  # lines 0-3
sketch20.addConstraint([
    Sketcher.Constraint("Vertical", 0),
    Sketcher.Constraint("Horizontal", 1),
    Sketcher.Constraint("Vertical", 2),
    Sketcher.Constraint("Horizontal", 3),
    Sketcher.Constraint("DistanceX", 1, 1, 1, 2, 10.0),
    Sketcher.Constraint("DistanceY", 0, 2, 0, 1, 8.0),
    Sketcher.Constraint("DistanceX", -1, 1, 0, 2, 10.0),
    Sketcher.Constraint("DistanceY", -1, 1, 0, 2, 68.0),
])
pocket16 = doc.addObject("PartDesign::Pocket", "Pocket015")
body.addObject(pocket16)
pocket16.Profile = sketch20
pocket16.Length = 5
pocket16.Reversed = True

doc.recompute()
